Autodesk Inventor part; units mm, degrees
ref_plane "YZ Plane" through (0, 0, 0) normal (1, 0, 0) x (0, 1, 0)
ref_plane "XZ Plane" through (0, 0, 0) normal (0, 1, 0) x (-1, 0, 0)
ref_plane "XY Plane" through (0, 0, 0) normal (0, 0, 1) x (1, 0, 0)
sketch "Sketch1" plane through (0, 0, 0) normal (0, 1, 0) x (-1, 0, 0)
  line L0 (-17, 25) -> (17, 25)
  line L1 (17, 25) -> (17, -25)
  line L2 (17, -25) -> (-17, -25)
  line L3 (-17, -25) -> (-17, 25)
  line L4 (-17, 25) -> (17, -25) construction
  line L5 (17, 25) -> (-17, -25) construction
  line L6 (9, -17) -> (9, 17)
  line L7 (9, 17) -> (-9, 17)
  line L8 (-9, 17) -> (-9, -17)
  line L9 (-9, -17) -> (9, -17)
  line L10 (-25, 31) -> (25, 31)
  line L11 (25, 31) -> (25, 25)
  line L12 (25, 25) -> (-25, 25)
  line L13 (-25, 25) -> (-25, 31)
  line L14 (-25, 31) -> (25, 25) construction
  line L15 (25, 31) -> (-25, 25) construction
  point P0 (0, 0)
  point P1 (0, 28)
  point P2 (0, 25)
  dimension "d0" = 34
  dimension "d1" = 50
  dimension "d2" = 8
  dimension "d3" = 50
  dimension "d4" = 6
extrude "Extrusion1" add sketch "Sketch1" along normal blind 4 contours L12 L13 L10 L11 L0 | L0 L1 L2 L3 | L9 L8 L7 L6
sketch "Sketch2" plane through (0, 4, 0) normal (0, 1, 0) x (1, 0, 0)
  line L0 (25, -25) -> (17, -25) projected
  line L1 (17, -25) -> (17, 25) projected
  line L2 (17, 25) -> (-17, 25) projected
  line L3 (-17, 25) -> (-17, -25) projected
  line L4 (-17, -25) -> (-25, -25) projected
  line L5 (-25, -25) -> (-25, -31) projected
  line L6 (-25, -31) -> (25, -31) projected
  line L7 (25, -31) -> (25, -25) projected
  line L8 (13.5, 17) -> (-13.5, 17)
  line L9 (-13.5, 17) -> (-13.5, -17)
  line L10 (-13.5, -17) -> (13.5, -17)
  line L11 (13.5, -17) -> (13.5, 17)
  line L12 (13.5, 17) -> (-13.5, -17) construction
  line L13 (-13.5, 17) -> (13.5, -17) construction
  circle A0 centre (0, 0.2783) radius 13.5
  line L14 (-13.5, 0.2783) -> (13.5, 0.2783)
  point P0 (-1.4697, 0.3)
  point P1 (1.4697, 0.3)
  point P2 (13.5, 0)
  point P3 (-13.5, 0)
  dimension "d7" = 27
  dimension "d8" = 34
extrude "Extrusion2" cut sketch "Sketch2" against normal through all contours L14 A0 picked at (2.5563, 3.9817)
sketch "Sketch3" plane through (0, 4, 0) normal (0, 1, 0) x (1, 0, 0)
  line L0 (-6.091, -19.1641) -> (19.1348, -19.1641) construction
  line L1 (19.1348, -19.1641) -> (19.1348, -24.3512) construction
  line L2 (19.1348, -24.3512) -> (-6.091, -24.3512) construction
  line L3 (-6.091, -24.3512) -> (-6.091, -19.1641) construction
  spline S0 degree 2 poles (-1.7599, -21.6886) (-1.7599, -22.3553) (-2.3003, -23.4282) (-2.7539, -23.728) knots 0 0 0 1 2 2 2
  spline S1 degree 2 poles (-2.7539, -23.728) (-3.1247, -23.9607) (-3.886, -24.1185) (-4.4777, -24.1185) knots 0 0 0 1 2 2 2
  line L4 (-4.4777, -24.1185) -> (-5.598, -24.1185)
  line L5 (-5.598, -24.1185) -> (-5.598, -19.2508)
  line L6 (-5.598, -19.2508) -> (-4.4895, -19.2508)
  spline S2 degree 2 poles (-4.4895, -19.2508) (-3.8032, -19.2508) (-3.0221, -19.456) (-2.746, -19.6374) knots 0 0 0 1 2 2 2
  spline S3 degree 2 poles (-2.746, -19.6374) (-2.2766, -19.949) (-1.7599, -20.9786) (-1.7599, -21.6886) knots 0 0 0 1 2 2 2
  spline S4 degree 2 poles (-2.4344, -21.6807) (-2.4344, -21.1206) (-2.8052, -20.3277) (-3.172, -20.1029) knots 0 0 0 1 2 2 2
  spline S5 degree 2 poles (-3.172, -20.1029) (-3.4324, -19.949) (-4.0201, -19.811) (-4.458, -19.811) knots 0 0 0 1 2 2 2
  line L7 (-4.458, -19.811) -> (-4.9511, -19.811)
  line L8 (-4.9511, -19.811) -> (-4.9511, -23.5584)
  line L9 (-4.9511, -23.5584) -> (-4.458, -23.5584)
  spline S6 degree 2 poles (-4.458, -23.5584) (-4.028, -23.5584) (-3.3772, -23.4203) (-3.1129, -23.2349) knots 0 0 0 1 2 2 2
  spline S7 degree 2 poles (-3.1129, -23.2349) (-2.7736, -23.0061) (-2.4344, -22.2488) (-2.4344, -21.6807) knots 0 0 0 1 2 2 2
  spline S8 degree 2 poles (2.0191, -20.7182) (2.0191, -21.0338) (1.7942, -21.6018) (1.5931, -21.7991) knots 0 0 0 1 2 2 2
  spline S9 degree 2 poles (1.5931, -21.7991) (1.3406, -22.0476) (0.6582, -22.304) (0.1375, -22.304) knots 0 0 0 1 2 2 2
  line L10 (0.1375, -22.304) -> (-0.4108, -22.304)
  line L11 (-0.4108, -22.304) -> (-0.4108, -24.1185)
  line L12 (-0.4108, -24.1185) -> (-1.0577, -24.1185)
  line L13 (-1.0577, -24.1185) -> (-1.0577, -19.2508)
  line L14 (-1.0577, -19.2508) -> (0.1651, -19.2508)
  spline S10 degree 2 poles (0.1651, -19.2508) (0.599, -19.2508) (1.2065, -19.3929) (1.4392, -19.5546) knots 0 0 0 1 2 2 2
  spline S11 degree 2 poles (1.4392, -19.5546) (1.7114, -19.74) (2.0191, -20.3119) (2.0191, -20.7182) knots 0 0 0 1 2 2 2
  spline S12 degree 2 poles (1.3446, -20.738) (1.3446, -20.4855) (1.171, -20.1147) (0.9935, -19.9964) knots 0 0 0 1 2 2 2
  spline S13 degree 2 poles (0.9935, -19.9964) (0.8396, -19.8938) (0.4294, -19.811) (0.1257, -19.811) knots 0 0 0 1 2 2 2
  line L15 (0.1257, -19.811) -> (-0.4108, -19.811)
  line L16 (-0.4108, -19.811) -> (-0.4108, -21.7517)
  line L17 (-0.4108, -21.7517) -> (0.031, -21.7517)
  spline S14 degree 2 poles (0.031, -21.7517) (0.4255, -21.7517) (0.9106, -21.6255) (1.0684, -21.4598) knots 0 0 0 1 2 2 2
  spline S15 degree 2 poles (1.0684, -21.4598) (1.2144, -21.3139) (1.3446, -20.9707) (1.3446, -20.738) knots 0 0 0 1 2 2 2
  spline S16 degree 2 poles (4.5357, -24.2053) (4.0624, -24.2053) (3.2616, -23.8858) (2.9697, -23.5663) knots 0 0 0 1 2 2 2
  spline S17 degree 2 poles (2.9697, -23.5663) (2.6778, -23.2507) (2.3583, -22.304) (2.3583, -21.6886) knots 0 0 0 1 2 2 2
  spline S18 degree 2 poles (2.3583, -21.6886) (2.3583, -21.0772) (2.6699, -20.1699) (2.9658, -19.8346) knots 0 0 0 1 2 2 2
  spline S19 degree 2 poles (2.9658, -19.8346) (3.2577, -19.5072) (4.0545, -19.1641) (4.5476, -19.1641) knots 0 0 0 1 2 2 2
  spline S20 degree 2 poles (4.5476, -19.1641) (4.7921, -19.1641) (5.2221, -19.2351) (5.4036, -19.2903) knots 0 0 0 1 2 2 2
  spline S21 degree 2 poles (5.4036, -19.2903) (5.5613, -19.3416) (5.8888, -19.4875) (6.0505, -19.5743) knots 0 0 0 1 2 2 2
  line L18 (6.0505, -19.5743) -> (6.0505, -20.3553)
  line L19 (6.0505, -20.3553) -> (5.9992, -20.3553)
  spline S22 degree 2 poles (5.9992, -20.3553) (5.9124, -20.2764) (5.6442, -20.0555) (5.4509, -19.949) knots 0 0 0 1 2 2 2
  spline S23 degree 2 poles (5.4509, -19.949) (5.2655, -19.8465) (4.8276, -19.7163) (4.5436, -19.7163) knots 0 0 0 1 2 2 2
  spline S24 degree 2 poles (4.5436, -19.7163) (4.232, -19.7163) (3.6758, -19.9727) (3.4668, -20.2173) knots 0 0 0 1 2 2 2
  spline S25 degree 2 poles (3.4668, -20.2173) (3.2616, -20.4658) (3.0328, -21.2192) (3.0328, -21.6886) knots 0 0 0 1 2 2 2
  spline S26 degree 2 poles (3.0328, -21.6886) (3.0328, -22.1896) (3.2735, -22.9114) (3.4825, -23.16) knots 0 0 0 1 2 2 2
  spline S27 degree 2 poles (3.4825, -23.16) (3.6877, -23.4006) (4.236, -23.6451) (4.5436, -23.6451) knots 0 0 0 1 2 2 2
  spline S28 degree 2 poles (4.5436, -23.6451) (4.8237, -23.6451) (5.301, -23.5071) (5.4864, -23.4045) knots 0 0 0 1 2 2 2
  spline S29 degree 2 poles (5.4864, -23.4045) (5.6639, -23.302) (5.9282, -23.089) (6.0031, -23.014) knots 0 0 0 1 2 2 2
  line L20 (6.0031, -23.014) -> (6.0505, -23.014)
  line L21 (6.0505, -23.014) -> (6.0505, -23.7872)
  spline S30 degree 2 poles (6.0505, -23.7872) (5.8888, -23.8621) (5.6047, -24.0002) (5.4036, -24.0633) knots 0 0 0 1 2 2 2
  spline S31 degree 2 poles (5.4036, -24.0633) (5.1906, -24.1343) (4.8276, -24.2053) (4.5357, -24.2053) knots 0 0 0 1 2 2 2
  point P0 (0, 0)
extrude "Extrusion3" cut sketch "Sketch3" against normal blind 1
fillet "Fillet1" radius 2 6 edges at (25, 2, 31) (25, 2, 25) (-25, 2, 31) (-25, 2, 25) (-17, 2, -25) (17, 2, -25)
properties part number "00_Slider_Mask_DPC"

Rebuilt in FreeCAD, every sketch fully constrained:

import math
import FreeCAD as App
import Part
import Sketcher
Q = App.Units.Quantity


def edges_at(feature, points):
    """Names of the edges that pass closest to the given points."""
    edges = feature.Shape.Edges
    near = lambda p: min(range(len(edges)), key=lambda i: edges[i].distToShape(Part.Vertex(*p))[0])
    return sorted({f"Edge{near(p) + 1}" for p in points})

doc = App.newDocument("Part")
body = doc.addObject("PartDesign::Body", "Body")

# Sketch on XZ plane
sketch1 = doc.addObject("Sketcher::SketchObject", "Sketch")
body.addObject(sketch1)
sketch1.AttachmentSupport = (doc.XZ_Plane, [""])
sketch1.MapMode = "FlatFace"
sketch1.addGeometry(Part.LineSegment(App.Vector(25, 25, 0), App.Vector(17, 25, 0)), False)
sketch1.addGeometry(Part.LineSegment(App.Vector(17, 25, 0), App.Vector(17, -25, 0)), False)
sketch1.addGeometry(Part.LineSegment(App.Vector(17, -25, 0), App.Vector(-17, -25, 0)), False)
sketch1.addGeometry(Part.LineSegment(App.Vector(-17, -25, 0), App.Vector(-17, 25, 0)), False)
sketch1.addGeometry(Part.LineSegment(App.Vector(-17, 25, 0), App.Vector(-25, 25, 0)), False)
sketch1.addGeometry(Part.LineSegment(App.Vector(-25, 25, 0), App.Vector(-25, 31, 0)), False)
sketch1.addGeometry(Part.LineSegment(App.Vector(-25, 31, 0), App.Vector(25, 31, 0)), False)
sketch1.addGeometry(Part.LineSegment(App.Vector(25, 31, 0), App.Vector(25, 25, 0)), False)
sketch1.addConstraint(Sketcher.Constraint("Coincident", 0, 2, 1, 1))
sketch1.addConstraint(Sketcher.Constraint("Coincident", 1, 2, 2, 1))
sketch1.addConstraint(Sketcher.Constraint("Coincident", 2, 2, 3, 1))
sketch1.addConstraint(Sketcher.Constraint("Coincident", 3, 2, 4, 1))
sketch1.addConstraint(Sketcher.Constraint("Coincident", 4, 2, 5, 1))
sketch1.addConstraint(Sketcher.Constraint("Coincident", 5, 2, 6, 1))
sketch1.addConstraint(Sketcher.Constraint("Coincident", 6, 2, 7, 1))
sketch1.addConstraint(Sketcher.Constraint("Coincident", 7, 2, 0, 1))
sketch1.addConstraint(Sketcher.Constraint("Horizontal", 0))
sketch1.addConstraint(Sketcher.Constraint("Vertical", 1))
sketch1.addConstraint(Sketcher.Constraint("Horizontal", 2))
sketch1.addConstraint(Sketcher.Constraint("Vertical", 3))
sketch1.addConstraint(Sketcher.Constraint("Horizontal", 4))
sketch1.addConstraint(Sketcher.Constraint("Vertical", 5))
sketch1.addConstraint(Sketcher.Constraint("Horizontal", 6))
sketch1.addConstraint(Sketcher.Constraint("Vertical", 7))
sketch1.addConstraint(Sketcher.Constraint("Symmetric", 0, 2, 2, 2, -1, 1))
sketch1.addConstraint(Sketcher.Constraint("Symmetric", 4, 2, 7, 2, -2))
sketch1.addConstraint(Sketcher.Constraint("Equal", 6, 1))
sketch1.addConstraint(Sketcher.Constraint("DistanceX", 0, 2, 0, 1, Q("8 mm")))
sketch1.addConstraint(Sketcher.Constraint("DistanceX", 2, 2, 2, 1, Q("34 mm")))
sketch1.addConstraint(Sketcher.Constraint("DistanceY", 5, 1, 5, 2, Q("6 mm")))
pad1 = doc.addObject("PartDesign::Pad", "Pad")
body.addObject(pad1)
pad1.Profile = sketch1
pad1.Length = 4
pad1.Reversed = True

# Sketch on XZ plane
sketch2 = doc.addObject("Sketcher::SketchObject", "Sketch001")
body.addObject(sketch2)
sketch2.AttachmentSupport = (doc.XZ_Plane, [""])
sketch2.MapMode = "FlatFace"
sketch2.AttachmentOffset = App.Placement(App.Vector(0, 0, -4), App.Rotation())
sketch2.addGeometry(Part.LineSegment(App.Vector(-14, 0, 0), App.Vector(14, 0, 0)), False)
sketch2.addGeometry(Part.ArcOfCircle(Part.Circle(App.Vector(0, 0, 0), App.Vector(0, 0, 1), 14), math.radians(180), math.radians(360)), False)
sketch2.addConstraint(Sketcher.Constraint("Coincident", 0, 1, 1, 1))
sketch2.addConstraint(Sketcher.Constraint("Coincident", 1, 2, 0, 2))
sketch2.addConstraint(Sketcher.Constraint("Horizontal", 0))
sketch2.addConstraint(Sketcher.Constraint("PointOnObject", 1, 3, -2))
sketch2.addConstraint(Sketcher.Constraint("Horizontal", 1, 3, 0, 1))
sketch2.addConstraint(Sketcher.Constraint("Radius", 1, Q("13.5 mm")))
sketch2.addConstraint(Sketcher.Constraint("DistanceY", 1, 3, -1, 1, Q("0.2783 mm")))
pocket1 = doc.addObject("PartDesign::Pocket", "Pocket")
body.addObject(pocket1)
pocket1.Profile = sketch2
pocket1.Type = "ThroughAll"
pocket1.Reversed = True

# Sketch on XZ plane
sketch3 = doc.addObject("Sketcher::SketchObject", "Sketch002")
body.addObject(sketch3)
sketch3.AttachmentSupport = (doc.XZ_Plane, [""])
sketch3.MapMode = "FlatFace"
sketch3.AttachmentOffset = App.Placement(App.Vector(0, 0, -4), App.Rotation())
sketch3.addGeometry(Part.BSplineCurve([App.Vector(-1.7599, 21.6886, 0), App.Vector(-1.7599, 22.3553, 0), App.Vector(-2.3003, 23.4282, 0), App.Vector(-2.7539, 23.728, 0)], [3, 1, 3], [0, 1, 2], False, 2, [1, 1, 1, 1], False), False)
sketch3.addGeometry(Part.BSplineCurve([App.Vector(-2.746, 19.6374, 0), App.Vector(-2.2766, 19.949, 0), App.Vector(-1.7599, 20.9786, 0), App.Vector(-1.7599, 21.6886, 0)], [3, 1, 3], [0, 1, 2], False, 2, [1, 1, 1, 1], False), False)
sketch3.addGeometry(Part.BSplineCurve([App.Vector(-4.4895, 19.2508, 0), App.Vector(-3.8032, 19.2508, 0), App.Vector(-3.0221, 19.456, 0), App.Vector(-2.746, 19.6374, 0)], [3, 1, 3], [0, 1, 2], False, 2, [1, 1, 1, 1], False), False)
sketch3.addGeometry(Part.LineSegment(App.Vector(-4.4895, 19.2508, 0), App.Vector(-5.598, 19.2508, 0)), False)
sketch3.addGeometry(Part.LineSegment(App.Vector(-5.598, 19.2508, 0), App.Vector(-5.598, 24.1185, 0)), False)
sketch3.addGeometry(Part.LineSegment(App.Vector(-5.598, 24.1185, 0), App.Vector(-4.4777, 24.1185, 0)), False)
sketch3.addGeometry(Part.BSplineCurve([App.Vector(-2.7539, 23.728, 0), App.Vector(-3.1247, 23.9607, 0), App.Vector(-3.886, 24.1185, 0), App.Vector(-4.4777, 24.1185, 0)], [3, 1, 3], [0, 1, 2], False, 2, [1, 1, 1, 1], False), False)
sketch3.addGeometry(Part.BSplineCurve([App.Vector(-2.4344, 21.6807, 0), App.Vector(-2.4344, 21.1206, 0), App.Vector(-2.8052, 20.3277, 0), App.Vector(-3.172, 20.1029, 0)], [3, 1, 3], [0, 1, 2], False, 2, [1, 1, 1, 1], False), False)
sketch3.addGeometry(Part.BSplineCurve([App.Vector(-3.1129, 23.2349, 0), App.Vector(-2.7736, 23.0061, 0), App.Vector(-2.4344, 22.2488, 0), App.Vector(-2.4344, 21.6807, 0)], [3, 1, 3], [0, 1, 2], False, 2, [1, 1, 1, 1], False), False)
sketch3.addGeometry(Part.BSplineCurve([App.Vector(-4.458, 23.5584, 0), App.Vector(-4.028, 23.5584, 0), App.Vector(-3.3772, 23.4203, 0), App.Vector(-3.1129, 23.2349, 0)], [3, 1, 3], [0, 1, 2], False, 2, [1, 1, 1, 1], False), False)
sketch3.addGeometry(Part.LineSegment(App.Vector(-4.458, 23.5584, 0), App.Vector(-4.9511, 23.5584, 0)), False)
sketch3.addGeometry(Part.LineSegment(App.Vector(-4.9511, 23.5584, 0), App.Vector(-4.9511, 19.811, 0)), False)
sketch3.addGeometry(Part.LineSegment(App.Vector(-4.9511, 19.811, 0), App.Vector(-4.458, 19.811, 0)), False)
sketch3.addGeometry(Part.BSplineCurve([App.Vector(-3.172, 20.1029, 0), App.Vector(-3.4324, 19.949, 0), App.Vector(-4.0201, 19.811, 0), App.Vector(-4.458, 19.811, 0)], [3, 1, 3], [0, 1, 2], False, 2, [1, 1, 1, 1], False), False)
sketch3.addGeometry(Part.BSplineCurve([App.Vector(2.0191, 20.7182, 0), App.Vector(2.0191, 21.0338, 0), App.Vector(1.7942, 21.6018, 0), App.Vector(1.5931, 21.7991, 0)], [3, 1, 3], [0, 1, 2], False, 2, [1, 1, 1, 1], False), False)
sketch3.addGeometry(Part.BSplineCurve([App.Vector(1.4392, 19.5546, 0), App.Vector(1.7114, 19.74, 0), App.Vector(2.0191, 20.3119, 0), App.Vector(2.0191, 20.7182, 0)], [3, 1, 3], [0, 1, 2], False, 2, [1, 1, 1, 1], False), False)
sketch3.addGeometry(Part.BSplineCurve([App.Vector(0.1651, 19.2508, 0), App.Vector(0.599, 19.2508, 0), App.Vector(1.2065, 19.3929, 0), App.Vector(1.4392, 19.5546, 0)], [3, 1, 3], [0, 1, 2], False, 2, [1, 1, 1, 1], False), False)
sketch3.addGeometry(Part.LineSegment(App.Vector(0.1651, 19.2508, 0), App.Vector(-1.0577, 19.2508, 0)), False)
sketch3.addGeometry(Part.LineSegment(App.Vector(-1.0577, 19.2508, 0), App.Vector(-1.0577, 24.1185, 0)), False)
sketch3.addGeometry(Part.LineSegment(App.Vector(-1.0577, 24.1185, 0), App.Vector(-0.4108, 24.1185, 0)), False)
sketch3.addGeometry(Part.LineSegment(App.Vector(-0.4108, 24.1185, 0), App.Vector(-0.4108, 22.304, 0)), False)
sketch3.addGeometry(Part.LineSegment(App.Vector(-0.4108, 22.304, 0), App.Vector(0.1375, 22.304, 0)), False)
sketch3.addGeometry(Part.BSplineCurve([App.Vector(1.5931, 21.7991, 0), App.Vector(1.3406, 22.0476, 0), App.Vector(0.6582, 22.304, 0), App.Vector(0.1375, 22.304, 0)], [3, 1, 3], [0, 1, 2], False, 2, [1, 1, 1, 1], False), False)
sketch3.addGeometry(Part.BSplineCurve([App.Vector(1.3446, 20.738, 0), App.Vector(1.3446, 20.4855, 0), App.Vector(1.171, 20.1147, 0), App.Vector(0.9935, 19.9964, 0)], [3, 1, 3], [0, 1, 2], False, 2, [1, 1, 1, 1], False), False)
sketch3.addGeometry(Part.BSplineCurve([App.Vector(1.0684, 21.4598, 0), App.Vector(1.2144, 21.3139, 0), App.Vector(1.3446, 20.9707, 0), App.Vector(1.3446, 20.738, 0)], [3, 1, 3], [0, 1, 2], False, 2, [1, 1, 1, 1], False), False)
sketch3.addGeometry(Part.BSplineCurve([App.Vector(0.031, 21.7517, 0), App.Vector(0.4255, 21.7517, 0), App.Vector(0.9106, 21.6255, 0), App.Vector(1.0684, 21.4598, 0)], [3, 1, 3], [0, 1, 2], False, 2, [1, 1, 1, 1], False), False)
sketch3.addGeometry(Part.LineSegment(App.Vector(0.031, 21.7517, 0), App.Vector(-0.4108, 21.7517, 0)), False)
sketch3.addGeometry(Part.LineSegment(App.Vector(-0.4108, 21.7517, 0), App.Vector(-0.4108, 19.811, 0)), False)
sketch3.addGeometry(Part.LineSegment(App.Vector(-0.4108, 19.811, 0), App.Vector(0.1257, 19.811, 0)), False)
sketch3.addGeometry(Part.BSplineCurve([App.Vector(0.9935, 19.9964, 0), App.Vector(0.8396, 19.8938, 0), App.Vector(0.4294, 19.811, 0), App.Vector(0.1257, 19.811, 0)], [3, 1, 3], [0, 1, 2], False, 2, [1, 1, 1, 1], False), False)
sketch3.addGeometry(Part.BSplineCurve([App.Vector(4.5357, 24.2053, 0), App.Vector(4.0624, 24.2053, 0), App.Vector(3.2616, 23.8858, 0), App.Vector(2.9697, 23.5663, 0)], [3, 1, 3], [0, 1, 2], False, 2, [1, 1, 1, 1], False), False)
sketch3.addGeometry(Part.BSplineCurve([App.Vector(5.4036, 24.0633, 0), App.Vector(5.1906, 24.1343, 0), App.Vector(4.8276, 24.2053, 0), App.Vector(4.5357, 24.2053, 0)], [3, 1, 3], [0, 1, 2], False, 2, [1, 1, 1, 1], False), False)
sketch3.addGeometry(Part.BSplineCurve([App.Vector(6.0505, 23.7872, 0), App.Vector(5.8888, 23.8621, 0), App.Vector(5.6047, 24.0002, 0), App.Vector(5.4036, 24.0633, 0)], [3, 1, 3], [0, 1, 2], False, 2, [1, 1, 1, 1], False), False)
sketch3.addGeometry(Part.LineSegment(App.Vector(6.0505, 23.7872, 0), App.Vector(6.0505, 23.014, 0)), False)
sketch3.addGeometry(Part.LineSegment(App.Vector(6.0505, 23.014, 0), App.Vector(6.0031, 23.014, 0)), False)
sketch3.addGeometry(Part.BSplineCurve([App.Vector(5.4864, 23.4045, 0), App.Vector(5.6639, 23.302, 0), App.Vector(5.9282, 23.089, 0), App.Vector(6.0031, 23.014, 0)], [3, 1, 3], [0, 1, 2], False, 2, [1, 1, 1, 1], False), False)
sketch3.addGeometry(Part.BSplineCurve([App.Vector(4.5436, 23.6451, 0), App.Vector(4.8237, 23.6451, 0), App.Vector(5.301, 23.5071, 0), App.Vector(5.4864, 23.4045, 0)], [3, 1, 3], [0, 1, 2], False, 2, [1, 1, 1, 1], False), False)
sketch3.addGeometry(Part.BSplineCurve([App.Vector(3.4825, 23.16, 0), App.Vector(3.6877, 23.4006, 0), App.Vector(4.236, 23.6451, 0), App.Vector(4.5436, 23.6451, 0)], [3, 1, 3], [0, 1, 2], False, 2, [1, 1, 1, 1], False), False)
sketch3.addGeometry(Part.BSplineCurve([App.Vector(3.0328, 21.6886, 0), App.Vector(3.0328, 22.1896, 0), App.Vector(3.2735, 22.9114, 0), App.Vector(3.4825, 23.16, 0)], [3, 1, 3], [0, 1, 2], False, 2, [1, 1, 1, 1], False), False)
sketch3.addGeometry(Part.BSplineCurve([App.Vector(3.4668, 20.2173, 0), App.Vector(3.2616, 20.4658, 0), App.Vector(3.0328, 21.2192, 0), App.Vector(3.0328, 21.6886, 0)], [3, 1, 3], [0, 1, 2], False, 2, [1, 1, 1, 1], False), False)
sketch3.addGeometry(Part.BSplineCurve([App.Vector(4.5436, 19.7163, 0), App.Vector(4.232, 19.7163, 0), App.Vector(3.6758, 19.9727, 0), App.Vector(3.4668, 20.2173, 0)], [3, 1, 3], [0, 1, 2], False, 2, [1, 1, 1, 1], False), False)
sketch3.addGeometry(Part.BSplineCurve([App.Vector(5.4509, 19.949, 0), App.Vector(5.2655, 19.8465, 0), App.Vector(4.8276, 19.7163, 0), App.Vector(4.5436, 19.7163, 0)], [3, 1, 3], [0, 1, 2], False, 2, [1, 1, 1, 1], False), False)
sketch3.addGeometry(Part.BSplineCurve([App.Vector(5.9992, 20.3553, 0), App.Vector(5.9124, 20.2764, 0), App.Vector(5.6442, 20.0555, 0), App.Vector(5.4509, 19.949, 0)], [3, 1, 3], [0, 1, 2], False, 2, [1, 1, 1, 1], False), False)
sketch3.addGeometry(Part.LineSegment(App.Vector(5.9992, 20.3553, 0), App.Vector(6.0505, 20.3553, 0)), False)
sketch3.addGeometry(Part.LineSegment(App.Vector(6.0505, 20.3553, 0), App.Vector(6.0505, 19.5743, 0)), False)
sketch3.addGeometry(Part.BSplineCurve([App.Vector(5.4036, 19.2903, 0), App.Vector(5.5613, 19.3416, 0), App.Vector(5.8888, 19.4875, 0), App.Vector(6.0505, 19.5743, 0)], [3, 1, 3], [0, 1, 2], False, 2, [1, 1, 1, 1], False), False)
sketch3.addGeometry(Part.BSplineCurve([App.Vector(4.5476, 19.1641, 0), App.Vector(4.7921, 19.1641, 0), App.Vector(5.2221, 19.2351, 0), App.Vector(5.4036, 19.2903, 0)], [3, 1, 3], [0, 1, 2], False, 2, [1, 1, 1, 1], False), False)
sketch3.addGeometry(Part.BSplineCurve([App.Vector(2.9658, 19.8346, 0), App.Vector(3.2577, 19.5072, 0), App.Vector(4.0545, 19.1641, 0), App.Vector(4.5476, 19.1641, 0)], [3, 1, 3], [0, 1, 2], False, 2, [1, 1, 1, 1], False), False)
sketch3.addGeometry(Part.BSplineCurve([App.Vector(2.3583, 21.6886, 0), App.Vector(2.3583, 21.0772, 0), App.Vector(2.6699, 20.1699, 0), App.Vector(2.9658, 19.8346, 0)], [3, 1, 3], [0, 1, 2], False, 2, [1, 1, 1, 1], False), False)
sketch3.addGeometry(Part.BSplineCurve([App.Vector(2.9697, 23.5663, 0), App.Vector(2.6778, 23.2507, 0), App.Vector(2.3583, 22.304, 0), App.Vector(2.3583, 21.6886, 0)], [3, 1, 3], [0, 1, 2], False, 2, [1, 1, 1, 1], False), False)
sketch3.addConstraint(Sketcher.Constraint("Block", 0))
sketch3.addConstraint(Sketcher.Constraint("Block", 1))
sketch3.addConstraint(Sketcher.Constraint("Block", 2))
sketch3.addConstraint(Sketcher.Constraint("Block", 6))
sketch3.addConstraint(Sketcher.Constraint("Block", 7))
sketch3.addConstraint(Sketcher.Constraint("Block", 8))
sketch3.addConstraint(Sketcher.Constraint("Block", 9))
sketch3.addConstraint(Sketcher.Constraint("Block", 13))
sketch3.addConstraint(Sketcher.Constraint("Block", 14))
sketch3.addConstraint(Sketcher.Constraint("Block", 15))
sketch3.addConstraint(Sketcher.Constraint("Block", 16))
sketch3.addConstraint(Sketcher.Constraint("Block", 22))
sketch3.addConstraint(Sketcher.Constraint("Block", 23))
sketch3.addConstraint(Sketcher.Constraint("Block", 24))
sketch3.addConstraint(Sketcher.Constraint("Block", 25))
sketch3.addConstraint(Sketcher.Constraint("Block", 29))
sketch3.addConstraint(Sketcher.Constraint("Block", 30))
sketch3.addConstraint(Sketcher.Constraint("Block", 31))
sketch3.addConstraint(Sketcher.Constraint("Block", 32))
sketch3.addConstraint(Sketcher.Constraint("Block", 35))
sketch3.addConstraint(Sketcher.Constraint("Block", 36))
sketch3.addConstraint(Sketcher.Constraint("Block", 37))
sketch3.addConstraint(Sketcher.Constraint("Block", 38))
sketch3.addConstraint(Sketcher.Constraint("Block", 39))
sketch3.addConstraint(Sketcher.Constraint("Block", 40))
sketch3.addConstraint(Sketcher.Constraint("Block", 41))
sketch3.addConstraint(Sketcher.Constraint("Block", 42))
sketch3.addConstraint(Sketcher.Constraint("Block", 45))
sketch3.addConstraint(Sketcher.Constraint("Block", 46))
sketch3.addConstraint(Sketcher.Constraint("Block", 47))
sketch3.addConstraint(Sketcher.Constraint("Block", 48))
sketch3.addConstraint(Sketcher.Constraint("Block", 49))
sketch3.addConstraint(Sketcher.Constraint("Coincident", 2, 1, 3, 1))
sketch3.addConstraint(Sketcher.Constraint("Coincident", 3, 2, 4, 1))
sketch3.addConstraint(Sketcher.Constraint("Coincident", 4, 2, 5, 1))
sketch3.addConstraint(Sketcher.Constraint("Coincident", 5, 2, 6, 2))
sketch3.addConstraint(Sketcher.Constraint("Coincident", 9, 1, 10, 1))
sketch3.addConstraint(Sketcher.Constraint("Coincident", 10, 2, 11, 1))
sketch3.addConstraint(Sketcher.Constraint("Coincident", 11, 2, 12, 1))
sketch3.addConstraint(Sketcher.Constraint("Coincident", 12, 2, 13, 2))
sketch3.addConstraint(Sketcher.Constraint("Coincident", 16, 1, 17, 1))
sketch3.addConstraint(Sketcher.Constraint("Coincident", 17, 2, 18, 1))
sketch3.addConstraint(Sketcher.Constraint("Coincident", 18, 2, 19, 1))
sketch3.addConstraint(Sketcher.Constraint("Coincident", 19, 2, 20, 1))
sketch3.addConstraint(Sketcher.Constraint("Coincident", 20, 2, 21, 1))
sketch3.addConstraint(Sketcher.Constraint("Coincident", 21, 2, 22, 2))
sketch3.addConstraint(Sketcher.Constraint("Coincident", 25, 1, 26, 1))
sketch3.addConstraint(Sketcher.Constraint("Coincident", 26, 2, 27, 1))
sketch3.addConstraint(Sketcher.Constraint("Coincident", 27, 2, 28, 1))
sketch3.addConstraint(Sketcher.Constraint("Coincident", 28, 2, 29, 2))
sketch3.addConstraint(Sketcher.Constraint("Coincident", 32, 1, 33, 1))
sketch3.addConstraint(Sketcher.Constraint("Coincident", 33, 2, 34, 1))
sketch3.addConstraint(Sketcher.Constraint("Coincident", 34, 2, 35, 2))
sketch3.addConstraint(Sketcher.Constraint("Coincident", 42, 1, 43, 1))
sketch3.addConstraint(Sketcher.Constraint("Coincident", 43, 2, 44, 1))
sketch3.addConstraint(Sketcher.Constraint("Coincident", 44, 2, 45, 2))
sketch3.addConstraint(Sketcher.Constraint("Horizontal", 3))
sketch3.addConstraint(Sketcher.Constraint("Vertical", 4))
sketch3.addConstraint(Sketcher.Constraint("Horizontal", 5))
sketch3.addConstraint(Sketcher.Constraint("Horizontal", 10))
sketch3.addConstraint(Sketcher.Constraint("Vertical", 11))
sketch3.addConstraint(Sketcher.Constraint("Horizontal", 12))
sketch3.addConstraint(Sketcher.Constraint("Horizontal", 17))
sketch3.addConstraint(Sketcher.Constraint("Vertical", 18))
sketch3.addConstraint(Sketcher.Constraint("Horizontal", 19))
sketch3.addConstraint(Sketcher.Constraint("Vertical", 20))
sketch3.addConstraint(Sketcher.Constraint("Horizontal", 21))
sketch3.addConstraint(Sketcher.Constraint("Horizontal", 26))
sketch3.addConstraint(Sketcher.Constraint("Vertical", 27))
sketch3.addConstraint(Sketcher.Constraint("Horizontal", 28))
sketch3.addConstraint(Sketcher.Constraint("Vertical", 33))
sketch3.addConstraint(Sketcher.Constraint("Horizontal", 34))
sketch3.addConstraint(Sketcher.Constraint("Horizontal", 43))
sketch3.addConstraint(Sketcher.Constraint("Vertical", 44))
sketch3.addConstraint(Sketcher.Constraint("Horizontal", 5, 2, 18, 2))
sketch3.addConstraint(Sketcher.Constraint("Vertical", 20, 2, 26, 2))
sketch3.addConstraint(Sketcher.Constraint("DistanceX", 10, 2, 10, 1, Q("0.493 mm")))
sketch3.addConstraint(Sketcher.Constraint("DistanceX", 19, 1, 19, 2, Q("0.647 mm")))
sketch3.addConstraint(Sketcher.Constraint("DistanceX", 3, 2, 12, 2, Q("1.14 mm")))
sketch3.addConstraint(Sketcher.Constraint("DistanceX", 5, 2, 17, 2, Q("3.42 mm")))
pocket2 = doc.addObject("PartDesign::Pocket", "Pocket001")
body.addObject(pocket2)
pocket2.Profile = sketch3
pocket2.Length = 1
pocket2.Reversed = True
doc.recompute()

fillet = doc.addObject("PartDesign::Fillet", "Fillet")
body.addObject(fillet)
fillet.Base = (pocket2, edges_at(pocket2, [
    (25, 2, 31),
    (25, 2, 25),
    (-25, 2, 31),
    (-25, 2, 25),
    (-17, 2, -25),
    (17, 2, -25),
]))
fillet.Radius = 2

doc.recompute()
